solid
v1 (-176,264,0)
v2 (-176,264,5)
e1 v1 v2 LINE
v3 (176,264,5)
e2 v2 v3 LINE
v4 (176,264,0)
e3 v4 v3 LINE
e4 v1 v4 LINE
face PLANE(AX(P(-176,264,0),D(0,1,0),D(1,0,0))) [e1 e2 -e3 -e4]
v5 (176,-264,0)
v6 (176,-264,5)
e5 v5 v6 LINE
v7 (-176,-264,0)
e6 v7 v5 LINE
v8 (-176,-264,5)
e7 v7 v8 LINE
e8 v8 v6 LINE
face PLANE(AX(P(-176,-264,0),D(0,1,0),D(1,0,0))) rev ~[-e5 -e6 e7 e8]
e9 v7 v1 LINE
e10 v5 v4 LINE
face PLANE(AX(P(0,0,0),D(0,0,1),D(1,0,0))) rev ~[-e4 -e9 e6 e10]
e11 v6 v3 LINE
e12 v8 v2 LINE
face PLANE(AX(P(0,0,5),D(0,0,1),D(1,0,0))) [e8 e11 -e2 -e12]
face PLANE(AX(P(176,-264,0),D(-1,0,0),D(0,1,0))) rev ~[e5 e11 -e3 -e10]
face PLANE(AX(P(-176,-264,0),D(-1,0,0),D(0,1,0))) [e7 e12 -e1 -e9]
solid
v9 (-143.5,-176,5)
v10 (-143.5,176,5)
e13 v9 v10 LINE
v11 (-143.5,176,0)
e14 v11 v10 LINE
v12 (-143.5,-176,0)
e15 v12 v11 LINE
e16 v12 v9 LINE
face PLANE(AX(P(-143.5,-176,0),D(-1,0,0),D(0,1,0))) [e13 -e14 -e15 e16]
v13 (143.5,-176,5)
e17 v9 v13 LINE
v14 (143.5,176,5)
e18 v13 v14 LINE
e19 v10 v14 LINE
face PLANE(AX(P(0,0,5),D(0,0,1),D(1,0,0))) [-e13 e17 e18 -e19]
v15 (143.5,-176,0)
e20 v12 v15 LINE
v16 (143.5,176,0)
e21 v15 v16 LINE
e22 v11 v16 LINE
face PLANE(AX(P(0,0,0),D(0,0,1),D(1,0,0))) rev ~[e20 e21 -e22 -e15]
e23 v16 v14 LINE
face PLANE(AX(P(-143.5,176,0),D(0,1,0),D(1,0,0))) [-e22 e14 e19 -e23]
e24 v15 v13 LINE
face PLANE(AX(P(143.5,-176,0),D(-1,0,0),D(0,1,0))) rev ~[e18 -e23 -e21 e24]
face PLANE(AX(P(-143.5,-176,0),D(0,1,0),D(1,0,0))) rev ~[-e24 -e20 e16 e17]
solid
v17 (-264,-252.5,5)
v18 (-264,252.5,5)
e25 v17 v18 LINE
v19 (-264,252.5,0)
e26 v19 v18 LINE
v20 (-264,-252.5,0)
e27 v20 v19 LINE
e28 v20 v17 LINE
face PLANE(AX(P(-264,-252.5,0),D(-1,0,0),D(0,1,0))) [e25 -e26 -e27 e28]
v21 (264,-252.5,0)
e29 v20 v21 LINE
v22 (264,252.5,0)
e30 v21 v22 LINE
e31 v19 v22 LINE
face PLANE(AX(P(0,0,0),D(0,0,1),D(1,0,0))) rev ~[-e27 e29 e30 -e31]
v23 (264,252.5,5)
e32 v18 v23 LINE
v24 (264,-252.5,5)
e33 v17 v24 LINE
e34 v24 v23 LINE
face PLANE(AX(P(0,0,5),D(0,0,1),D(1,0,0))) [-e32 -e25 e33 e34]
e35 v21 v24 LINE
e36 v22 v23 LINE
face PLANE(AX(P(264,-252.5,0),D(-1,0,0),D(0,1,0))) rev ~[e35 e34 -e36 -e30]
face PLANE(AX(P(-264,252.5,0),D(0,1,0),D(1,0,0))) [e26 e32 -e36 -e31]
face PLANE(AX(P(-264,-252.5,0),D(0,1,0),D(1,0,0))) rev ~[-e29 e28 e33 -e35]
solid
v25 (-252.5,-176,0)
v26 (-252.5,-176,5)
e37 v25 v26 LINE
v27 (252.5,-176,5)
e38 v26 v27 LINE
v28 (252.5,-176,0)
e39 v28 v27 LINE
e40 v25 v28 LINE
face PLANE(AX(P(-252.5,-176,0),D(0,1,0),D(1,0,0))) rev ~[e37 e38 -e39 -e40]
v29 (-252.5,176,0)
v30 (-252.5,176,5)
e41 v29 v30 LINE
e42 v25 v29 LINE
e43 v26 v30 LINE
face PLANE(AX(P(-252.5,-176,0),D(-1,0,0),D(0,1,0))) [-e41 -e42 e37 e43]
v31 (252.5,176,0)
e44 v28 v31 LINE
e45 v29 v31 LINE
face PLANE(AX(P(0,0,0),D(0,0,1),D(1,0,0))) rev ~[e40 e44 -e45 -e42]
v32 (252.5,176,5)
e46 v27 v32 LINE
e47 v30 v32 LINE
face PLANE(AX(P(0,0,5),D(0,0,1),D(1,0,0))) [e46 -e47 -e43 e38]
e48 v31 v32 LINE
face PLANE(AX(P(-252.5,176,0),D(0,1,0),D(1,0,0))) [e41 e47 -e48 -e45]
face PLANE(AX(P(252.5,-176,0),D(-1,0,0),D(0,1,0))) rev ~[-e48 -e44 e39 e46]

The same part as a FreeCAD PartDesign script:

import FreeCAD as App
import Part
import Sketcher
from FreeCAD import Vector
Q = App.Units.Quantity


def add_polygon(sketch, points):
    """Adds a closed chain of lines whose ends are joined by coincident constraints."""
    first, n = sketch.GeometryCount, len(points)
    for a, b in zip(points, points[1:] + points[:1]):
        sketch.addGeometry(Part.LineSegment(App.Vector(*a, 0), App.Vector(*b, 0)), False)
    for i in range(n):
        sketch.addConstraint(Sketcher.Constraint("Coincident", first + i, 2, first + (i + 1) % n, 1))

doc = App.newDocument("Part")
body = doc.addObject("PartDesign::Body", "Body")

sketch1 = body.newObject("Sketcher::SketchObject", "Sketch")
sketch1.AttachmentSupport = (doc.getObject("XY_Plane"), [""])
sketch1.MapMode = "FlatFace"
add_polygon(sketch1, [(-252.5, 176), (-252.5, -176), (252.5, -176), (252.5, 176)])
sketch1.addConstraint(Sketcher.Constraint("Vertical", 0))
sketch1.addConstraint(Sketcher.Constraint("Horizontal", 1))
sketch1.addConstraint(Sketcher.Constraint("Vertical", 2))
sketch1.addConstraint(Sketcher.Constraint("Horizontal", 3))
sketch1.addConstraint(Sketcher.Constraint("Symmetric", 0, 2, 2, 2, -1, 1))
sketch1.addConstraint(Sketcher.Constraint("DistanceX", 1, 1, 1, 2, Q("505 mm")))
sketch1.addConstraint(Sketcher.Constraint("DistanceY", 0, 2, 0, 1, Q("352 mm")))
pad1 = body.newObject("PartDesign::Pad", "Pad")
pad1.Profile = sketch1
pad1.Length = 5
body2 = doc.addObject("PartDesign::Body", "Body001")

sketch2 = body2.newObject("Sketcher::SketchObject", "Sketch001")
sketch2.AttachmentSupport = (doc.getObject("XY_Plane001"), [""])
sketch2.MapMode = "FlatFace"
add_polygon(sketch2, [(-264, 252.5), (-264, -252.5), (264, -252.5), (264, 252.5)])
sketch2.addConstraint(Sketcher.Constraint("Vertical", 0))
sketch2.addConstraint(Sketcher.Constraint("Horizontal", 1))
sketch2.addConstraint(Sketcher.Constraint("Vertical", 2))
sketch2.addConstraint(Sketcher.Constraint("Horizontal", 3))
sketch2.addConstraint(Sketcher.Constraint("Symmetric", 0, 2, 2, 2, -1, 1))
sketch2.addConstraint(Sketcher.Constraint("DistanceX", 1, 1, 1, 2, Q("528 mm")))
sketch2.addConstraint(Sketcher.Constraint("DistanceY", 0, 2, 0, 1, Q("505 mm")))
pad2 = body2.newObject("PartDesign::Pad", "Pad001")
pad2.Profile = sketch2
pad2.Length = 5
body3 = doc.addObject("PartDesign::Body", "Body002")

sketch3 = body3.newObject("Sketcher::SketchObject", "Sketch002")
sketch3.AttachmentSupport = (doc.getObject("XY_Plane002"), [""])
sketch3.MapMode = "FlatFace"
add_polygon(sketch3, [(-176, 264), (-176, -264), (176, -264), (176, 264)])
sketch3.addConstraint(Sketcher.Constraint("Vertical", 0))
sketch3.addConstraint(Sketcher.Constraint("Horizontal", 1))
sketch3.addConstraint(Sketcher.Constraint("Vertical", 2))
sketch3.addConstraint(Sketcher.Constraint("Horizontal", 3))
sketch3.addConstraint(Sketcher.Constraint("Symmetric", 0, 2, 2, 2, -1, 1))
sketch3.addConstraint(Sketcher.Constraint("DistanceX", 1, 1, 1, 2, Q("352 mm")))
sketch3.addConstraint(Sketcher.Constraint("DistanceY", 0, 2, 0, 1, Q("528 mm")))
pad3 = body3.newObject("PartDesign::Pad", "Pad002")
pad3.Profile = sketch3
pad3.Length = 5
body4 = doc.addObject("PartDesign::Body", "Body003")

sketch4 = body4.newObject("Sketcher::SketchObject", "Sketch003")
sketch4.AttachmentSupport = (doc.getObject("XY_Plane003"), [""])
sketch4.MapMode = "FlatFace"
add_polygon(sketch4, [(-143.5, 176), (-143.5, -176), (143.5, -176), (143.5, 176)])
sketch4.addConstraint(Sketcher.Constraint("Vertical", 0))
sketch4.addConstraint(Sketcher.Constraint("Horizontal", 1))
sketch4.addConstraint(Sketcher.Constraint("Vertical", 2))
sketch4.addConstraint(Sketcher.Constraint("Horizontal", 3))
sketch4.addConstraint(Sketcher.Constraint("Symmetric", 0, 2, 2, 2, -1, 1))
sketch4.addConstraint(Sketcher.Constraint("DistanceX", 1, 1, 1, 2, Q("287 mm")))
sketch4.addConstraint(Sketcher.Constraint("DistanceY", 0, 2, 0, 1, Q("352 mm")))
pad4 = body4.newObject("PartDesign::Pad", "Pad003")
pad4.Profile = sketch4
pad4.Length = 5

doc.recompute()
